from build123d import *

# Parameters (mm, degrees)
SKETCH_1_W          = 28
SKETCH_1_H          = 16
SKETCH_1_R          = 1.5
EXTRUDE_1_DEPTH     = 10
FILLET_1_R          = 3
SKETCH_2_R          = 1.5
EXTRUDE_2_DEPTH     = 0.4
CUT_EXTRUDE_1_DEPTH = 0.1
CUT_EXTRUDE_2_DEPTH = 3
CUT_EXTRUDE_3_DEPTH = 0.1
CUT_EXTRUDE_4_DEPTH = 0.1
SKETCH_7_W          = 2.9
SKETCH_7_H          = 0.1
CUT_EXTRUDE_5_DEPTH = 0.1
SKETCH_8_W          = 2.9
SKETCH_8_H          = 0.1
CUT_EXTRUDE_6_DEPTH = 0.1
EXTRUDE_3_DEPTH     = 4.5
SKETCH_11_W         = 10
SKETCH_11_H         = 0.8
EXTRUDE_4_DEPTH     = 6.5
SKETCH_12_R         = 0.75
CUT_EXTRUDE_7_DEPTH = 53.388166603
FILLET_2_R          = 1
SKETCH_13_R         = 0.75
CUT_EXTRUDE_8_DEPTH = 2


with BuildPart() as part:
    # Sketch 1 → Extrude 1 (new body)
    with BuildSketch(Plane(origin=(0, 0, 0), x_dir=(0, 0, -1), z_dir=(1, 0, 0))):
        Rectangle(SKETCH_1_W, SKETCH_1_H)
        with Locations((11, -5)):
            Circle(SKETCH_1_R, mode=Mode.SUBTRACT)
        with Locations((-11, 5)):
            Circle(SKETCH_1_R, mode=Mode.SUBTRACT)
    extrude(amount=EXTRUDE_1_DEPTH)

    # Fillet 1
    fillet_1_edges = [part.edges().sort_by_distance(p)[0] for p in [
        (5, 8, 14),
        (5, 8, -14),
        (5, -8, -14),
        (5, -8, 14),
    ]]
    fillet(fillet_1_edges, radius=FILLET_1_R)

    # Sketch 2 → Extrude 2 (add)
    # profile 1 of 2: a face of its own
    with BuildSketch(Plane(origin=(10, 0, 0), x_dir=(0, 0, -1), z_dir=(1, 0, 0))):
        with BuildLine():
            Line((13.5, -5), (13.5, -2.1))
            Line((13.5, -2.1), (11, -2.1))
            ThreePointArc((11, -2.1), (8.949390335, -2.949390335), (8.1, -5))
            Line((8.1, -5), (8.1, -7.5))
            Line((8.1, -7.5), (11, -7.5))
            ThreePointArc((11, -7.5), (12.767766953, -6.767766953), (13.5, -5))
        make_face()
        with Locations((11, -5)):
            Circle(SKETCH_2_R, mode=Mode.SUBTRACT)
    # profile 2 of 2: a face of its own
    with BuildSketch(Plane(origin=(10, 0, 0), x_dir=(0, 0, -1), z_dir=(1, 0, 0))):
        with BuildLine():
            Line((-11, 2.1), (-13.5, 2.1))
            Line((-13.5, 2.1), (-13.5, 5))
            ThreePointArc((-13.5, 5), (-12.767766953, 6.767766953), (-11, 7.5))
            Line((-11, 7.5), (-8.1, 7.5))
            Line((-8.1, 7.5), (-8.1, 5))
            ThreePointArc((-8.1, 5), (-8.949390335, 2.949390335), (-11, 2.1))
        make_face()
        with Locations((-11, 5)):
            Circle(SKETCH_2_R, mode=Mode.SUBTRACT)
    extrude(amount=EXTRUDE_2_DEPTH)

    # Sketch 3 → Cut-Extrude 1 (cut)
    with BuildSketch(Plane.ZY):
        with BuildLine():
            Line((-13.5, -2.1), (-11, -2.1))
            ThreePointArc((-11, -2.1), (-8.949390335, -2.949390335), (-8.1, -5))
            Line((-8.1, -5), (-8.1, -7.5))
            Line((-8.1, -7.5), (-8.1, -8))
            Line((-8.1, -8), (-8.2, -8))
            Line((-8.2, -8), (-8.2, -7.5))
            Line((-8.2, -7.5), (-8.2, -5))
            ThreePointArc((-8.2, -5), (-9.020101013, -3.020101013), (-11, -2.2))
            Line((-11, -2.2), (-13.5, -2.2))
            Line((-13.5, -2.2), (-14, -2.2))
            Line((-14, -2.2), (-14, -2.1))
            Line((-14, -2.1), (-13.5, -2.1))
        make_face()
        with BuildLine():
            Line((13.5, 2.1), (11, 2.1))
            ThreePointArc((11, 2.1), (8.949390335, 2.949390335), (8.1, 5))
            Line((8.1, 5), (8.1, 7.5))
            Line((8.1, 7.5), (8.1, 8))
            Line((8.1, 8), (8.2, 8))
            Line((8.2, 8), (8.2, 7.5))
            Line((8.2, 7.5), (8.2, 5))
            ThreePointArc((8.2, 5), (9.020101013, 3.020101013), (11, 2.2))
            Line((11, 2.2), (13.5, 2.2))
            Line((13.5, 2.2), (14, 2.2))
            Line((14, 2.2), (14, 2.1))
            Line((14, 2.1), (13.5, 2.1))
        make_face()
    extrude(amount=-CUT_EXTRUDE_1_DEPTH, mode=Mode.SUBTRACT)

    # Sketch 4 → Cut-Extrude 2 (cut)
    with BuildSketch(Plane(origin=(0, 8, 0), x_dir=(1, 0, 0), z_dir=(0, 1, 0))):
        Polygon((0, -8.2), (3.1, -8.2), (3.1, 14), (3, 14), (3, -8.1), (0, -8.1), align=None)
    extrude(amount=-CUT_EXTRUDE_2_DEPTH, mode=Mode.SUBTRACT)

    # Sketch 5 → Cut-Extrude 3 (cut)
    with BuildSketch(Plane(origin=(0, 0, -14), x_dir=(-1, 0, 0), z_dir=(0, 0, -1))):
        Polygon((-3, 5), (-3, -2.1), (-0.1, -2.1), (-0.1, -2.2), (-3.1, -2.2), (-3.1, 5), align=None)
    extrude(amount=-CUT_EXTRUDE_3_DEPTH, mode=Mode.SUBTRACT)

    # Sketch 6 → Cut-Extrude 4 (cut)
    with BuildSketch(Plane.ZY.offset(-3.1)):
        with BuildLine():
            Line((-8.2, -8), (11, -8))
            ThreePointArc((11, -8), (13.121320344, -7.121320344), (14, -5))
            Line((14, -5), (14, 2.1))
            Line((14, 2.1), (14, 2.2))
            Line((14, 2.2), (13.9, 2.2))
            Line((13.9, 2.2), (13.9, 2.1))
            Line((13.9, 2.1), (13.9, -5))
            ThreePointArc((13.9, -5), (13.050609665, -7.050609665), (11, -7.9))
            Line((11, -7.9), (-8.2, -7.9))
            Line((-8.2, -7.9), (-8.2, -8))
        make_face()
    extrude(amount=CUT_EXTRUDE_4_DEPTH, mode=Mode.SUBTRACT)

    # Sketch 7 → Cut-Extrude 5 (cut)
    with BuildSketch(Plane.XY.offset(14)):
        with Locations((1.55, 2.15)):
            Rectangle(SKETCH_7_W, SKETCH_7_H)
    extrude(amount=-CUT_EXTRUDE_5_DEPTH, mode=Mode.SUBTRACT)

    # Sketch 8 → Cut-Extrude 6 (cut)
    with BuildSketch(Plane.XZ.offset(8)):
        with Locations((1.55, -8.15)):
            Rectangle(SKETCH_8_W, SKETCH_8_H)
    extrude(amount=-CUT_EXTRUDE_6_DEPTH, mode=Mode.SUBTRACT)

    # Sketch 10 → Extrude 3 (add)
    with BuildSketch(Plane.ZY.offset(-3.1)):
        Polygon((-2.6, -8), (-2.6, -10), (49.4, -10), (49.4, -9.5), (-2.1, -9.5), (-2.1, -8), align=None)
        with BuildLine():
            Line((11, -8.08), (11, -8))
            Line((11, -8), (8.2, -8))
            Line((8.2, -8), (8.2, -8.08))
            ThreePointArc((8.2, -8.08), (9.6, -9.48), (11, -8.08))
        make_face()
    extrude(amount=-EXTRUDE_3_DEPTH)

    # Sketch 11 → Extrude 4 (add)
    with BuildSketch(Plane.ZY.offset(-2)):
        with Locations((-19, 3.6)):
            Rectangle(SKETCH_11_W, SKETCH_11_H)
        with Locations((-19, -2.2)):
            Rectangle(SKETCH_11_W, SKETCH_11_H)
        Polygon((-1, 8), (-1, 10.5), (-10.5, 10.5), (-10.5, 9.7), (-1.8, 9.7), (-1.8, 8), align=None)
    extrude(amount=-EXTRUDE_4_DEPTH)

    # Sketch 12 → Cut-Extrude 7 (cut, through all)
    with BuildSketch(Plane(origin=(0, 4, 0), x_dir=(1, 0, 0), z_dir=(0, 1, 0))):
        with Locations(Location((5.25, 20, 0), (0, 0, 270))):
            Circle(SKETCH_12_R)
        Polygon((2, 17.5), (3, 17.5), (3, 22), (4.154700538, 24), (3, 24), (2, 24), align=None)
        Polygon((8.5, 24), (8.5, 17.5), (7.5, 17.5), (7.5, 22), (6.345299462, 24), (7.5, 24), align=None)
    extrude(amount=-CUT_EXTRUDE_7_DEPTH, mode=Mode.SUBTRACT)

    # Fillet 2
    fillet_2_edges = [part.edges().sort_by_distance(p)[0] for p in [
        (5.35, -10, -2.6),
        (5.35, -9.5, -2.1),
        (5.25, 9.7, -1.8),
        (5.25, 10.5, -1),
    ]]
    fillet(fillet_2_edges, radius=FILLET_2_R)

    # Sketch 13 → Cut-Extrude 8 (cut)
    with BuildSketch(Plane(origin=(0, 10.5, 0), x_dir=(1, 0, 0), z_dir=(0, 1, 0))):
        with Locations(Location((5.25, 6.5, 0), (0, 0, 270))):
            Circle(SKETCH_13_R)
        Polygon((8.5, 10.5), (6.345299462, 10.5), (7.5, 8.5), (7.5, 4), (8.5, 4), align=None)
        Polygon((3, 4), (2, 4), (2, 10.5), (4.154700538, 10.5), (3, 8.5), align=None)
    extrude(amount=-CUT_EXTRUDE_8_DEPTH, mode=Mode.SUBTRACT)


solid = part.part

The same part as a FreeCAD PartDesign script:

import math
import FreeCAD as App
import Part
import Sketcher

V = App.Vector
Q = App.Units.Quantity


def edges_at(feature, points):
    """Names of the edges that pass closest to the given points."""
    edges = feature.Shape.Edges
    near = lambda p: min(range(len(edges)), key=lambda i: edges[i].distToShape(Part.Vertex(*p))[0])
    return sorted({f"Edge{near(p) + 1}" for p in points})


def add_polygon(sketch, points):
    """Adds a closed chain of lines whose ends are joined by coincident constraints."""
    first, n = sketch.GeometryCount, len(points)
    for a, b in zip(points, points[1:] + points[:1]):
        sketch.addGeometry(Part.LineSegment(App.Vector(*a, 0), App.Vector(*b, 0)), False)
    for i in range(n):
        sketch.addConstraint(Sketcher.Constraint("Coincident", first + i, 2, first + (i + 1) % n, 1))

doc = App.newDocument("Part")
params = doc.addObject("Spreadsheet::Sheet", "Params")
for row, (alias, value) in enumerate([
    ("sketch1_diameter", "3 mm"),
    ("sketch1_width", "16 mm"),
    ("sketch1_height", "28 mm"),
    ("pad1_length", "10 mm"),
    ("fillet_radius", "3 mm"),
    ("sketch2_diameter", "3 mm"),
    ("sketch2_radius", "2.9 mm"),
    ("sketch2_radius2", "2.5 mm"),
    ("pad2_length", "0.4 mm"),
    ("sketch3_radius", "2.9 mm"),
    ("sketch3_radius2", "2.8 mm"),
    ("sketch3_width", "3 mm"),
    ("pocket1_length", "0.1 mm"),
    ("sketch4_width", "3 mm"),
    ("sketch4_width2", "3.1 mm"),
    ("sketch4_height", "22.2 mm"),
    ("pocket2_length", "3 mm"),
    ("sketch5_width", "3 mm"),
    ("sketch5_width2", "0.1 mm"),
    ("sketch5_height", "7.1 mm"),
    ("pocket3_length", "0.1 mm"),
    ("sketch6_radius", "3 mm"),
    ("sketch6_radius2", "2.9 mm"),
    ("sketch6_width", "7.2 mm"),
    ("sketch6_height", "19.2 mm"),
    ("pocket4_length", "0.1 mm"),
    ("sketch7_width", "2.9 mm"),
    ("sketch7_height", "0.1 mm"),
    ("pocket5_length", "0.1 mm"),
    ("sketch8_width", "2.9 mm"),
    ("sketch8_height", "0.1 mm"),
    ("pocket6_length", "0.1 mm"),
    ("sketch9_radius", "1.4 mm"),
    ("sketch9_width", "2 mm"),
    ("sketch9_height", "52 mm"),
    ("sketch9_width2", "0.5 mm"),
    ("sketch9_width3", "0.08 mm"),
    ("pad3_length", "4.5 mm"),
    ("sketch10_height", "10 mm"),
    ("sketch10_width", "0.8 mm"),
    ("sketch10_width2", "2.5 mm"),
    ("sketch10_height2", "9.5 mm"),
    ("pad4_length", "6.5 mm"),
    ("sketch11_diameter", "1.5 mm"),
    ("sketch11_width", "1 mm"),
    ("sketch11_height", "4.5 mm"),
    ("sketch11_height2", "6.5 mm"),
    ("fillet2_radius", "1 mm"),
    ("sketch12_diameter", "1.5 mm"),
    ("sketch12_width", "1 mm"),
    ("sketch12_height", "4.5 mm"),
    ("sketch12_height2", "6.5 mm"),
    ("pocket8_length", "2 mm"),
], start=1):
    params.set(f"A{row}", alias)
    params.set(f"B{row}", "=" + value)
    params.setAlias(f"B{row}", alias)

body = doc.addObject("PartDesign::Body", "Body")

# Sketch on YZ plane
sketch1 = doc.addObject("Sketcher::SketchObject", "Sketch")
body.addObject(sketch1)
sketch1.AttachmentSupport = (doc.YZ_Plane, [""])
sketch1.MapMode = "FlatFace"
add_polygon(sketch1, [(8, 14), (-8, 14), (-8, -14), (8, -14)])  # lines 0-3
sketch1.addGeometry(Part.Circle(V(-5, -11, 0), V(0, 0, 1), 1.5), False)  # 4
sketch1.addGeometry(Part.Circle(V(5, 11, 0), V(0, 0, 1), 1.5), False)  # 5
sketch1.addConstraint([
    Sketcher.Constraint("Horizontal", 0),
    Sketcher.Constraint("Vertical", 1),
    Sketcher.Constraint("Horizontal", 2),
    Sketcher.Constraint("Vertical", 3),
    Sketcher.Constraint("Equal", 4, 5),
    Sketcher.Constraint("Symmetric", 4, 3, 5, 3, -1, 1),
    Sketcher.Constraint("Symmetric", 0, 2, 2, 2, -1, 1),
    Sketcher.Constraint("Diameter", 4, 3.0),
    Sketcher.Constraint("DistanceX", 0, 2, 0, 1, 16.0),
    Sketcher.Constraint("DistanceY", 1, 2, 1, 1, 28.0),
    Sketcher.Constraint("DistanceX", 4, 3, -1, 1, 5.0),
    Sketcher.Constraint("DistanceY", 4, 3, -1, 1, 11.0),
])
sketch1.setExpression("Constraints[11]", "Params.sketch1_diameter")
sketch1.setExpression("Constraints[12]", "Params.sketch1_width")
sketch1.setExpression("Constraints[13]", "Params.sketch1_height")
pad1 = doc.addObject("PartDesign::Pad", "Pad")
body.addObject(pad1)
pad1.Profile = sketch1
pad1.setExpression("Length", "Params.pad1_length")
doc.recompute()

fillet = doc.addObject("PartDesign::Fillet", "Fillet")
body.addObject(fillet)
fillet.Base = (pad1, edges_at(pad1, [
    (5, 8, 14),
    (5, 8, -14),
    (5, -8, -14),
    (5, -8, 14),
]))
fillet.setExpression("Radius", "Params.fillet_radius")

# Sketch on YZ plane
sketch2 = doc.addObject("Sketcher::SketchObject", "Sketch001")
body.addObject(sketch2)
sketch2.AttachmentSupport = (doc.YZ_Plane, [""])
sketch2.MapMode = "FlatFace"
sketch2.AttachmentOffset = App.Placement(V(0, 0, 10), App.Rotation())
sketch2.addGeometry([
    Part.LineSegment(V(-5, -13.5, 0), V(-2.1, -13.5, 0)),  # 0
    Part.LineSegment(V(-2.1, -13.5, 0), V(-2.1, -11, 0)),  # 1
    Part.ArcOfCircle(Part.Circle(V(-5, -11, 0), V(0, 0, 1), 2.9), math.radians(0), math.radians(90)),  # 2
    Part.LineSegment(V(-5, -8.1, 0), V(-7.5, -8.1, 0)),  # 3
    Part.LineSegment(V(-7.5, -8.1, 0), V(-7.5, -11, 0)),  # 4
    Part.ArcOfCircle(Part.Circle(V(-5, -11, 0), V(0, 0, 1), 2.5), math.radians(180), math.radians(270)),  # 5
    Part.Circle(V(-5, -11, 0), V(0, 0, 1), 1.5),  # 6
    Part.LineSegment(V(2.1, 13.5, 0), V(2.1, 11, 0)),  # 7
    Part.ArcOfCircle(Part.Circle(V(5, 11, 0), V(0, 0, 1), 2.9), math.radians(-180), math.radians(-90)),  # 8
    Part.LineSegment(V(5, 8.1, 0), V(7.5, 8.1, 0)),  # 9
    Part.LineSegment(V(7.5, 8.1, 0), V(7.5, 11, 0)),  # 10
    Part.ArcOfCircle(Part.Circle(V(5, 11, 0), V(0, 0, 1), 2.5), math.radians(0), math.radians(90)),  # 11
    Part.LineSegment(V(5, 13.5, 0), V(2.1, 13.5, 0)),  # 12
    Part.Circle(V(5, 11, 0), V(0, 0, 1), 1.5),  # 13
], False)
sketch2.addConstraint([
    Sketcher.Constraint("Coincident", 0, 2, 1, 1),
    Sketcher.Constraint("Tangent", 1, 2, 2, 1),
    Sketcher.Constraint("Tangent", 2, 2, 3, 1),
    Sketcher.Constraint("Coincident", 3, 2, 4, 1),
    Sketcher.Constraint("Tangent", 4, 2, 5, 1),
    Sketcher.Constraint("Tangent", 5, 2, 0, 1),
    Sketcher.Constraint("Tangent", 7, 2, 8, 1),
    Sketcher.Constraint("Tangent", 8, 2, 9, 1),
    Sketcher.Constraint("Coincident", 9, 2, 10, 1),
    Sketcher.Constraint("Tangent", 10, 2, 11, 1),
    Sketcher.Constraint("Tangent", 11, 2, 12, 1),
    Sketcher.Constraint("Coincident", 12, 2, 7, 1),
    Sketcher.Constraint("Horizontal", 0),
    Sketcher.Constraint("Vertical", 1),
    Sketcher.Constraint("Horizontal", 3),
    Sketcher.Constraint("Vertical", 4),
    Sketcher.Constraint("Vertical", 7),
    Sketcher.Constraint("Horizontal", 9),
    Sketcher.Constraint("Vertical", 10),
    Sketcher.Constraint("Horizontal", 12),
    Sketcher.Constraint("Coincident", 5, 3, 2, 3),
    Sketcher.Constraint("Coincident", 6, 3, 2, 3),
    Sketcher.Constraint("Coincident", 11, 3, 8, 3),
    Sketcher.Constraint("Coincident", 13, 3, 8, 3),
    Sketcher.Constraint("Equal", 2, 8),
    Sketcher.Constraint("Equal", 5, 11),
    Sketcher.Constraint("Equal", 6, 13),
    Sketcher.Constraint("Symmetric", 2, 3, 8, 3, -1, 1),
    Sketcher.Constraint("Diameter", 6, 3.0),
    Sketcher.Constraint("Radius", 2, 2.9),
    Sketcher.Constraint("Radius", 5, 2.5),
    Sketcher.Constraint("DistanceX", 2, 3, -1, 1, 5.0),
    Sketcher.Constraint("DistanceY", 2, 3, -1, 1, 11.0),
])
sketch2.setExpression("Constraints[28]", "Params.sketch2_diameter")
sketch2.setExpression("Constraints[29]", "Params.sketch2_radius")
sketch2.setExpression("Constraints[30]", "Params.sketch2_radius2")
pad2 = doc.addObject("PartDesign::Pad", "Pad001")
body.addObject(pad2)
pad2.Profile = sketch2
pad2.setExpression("Length", "Params.pad2_length")

# Sketch on YZ plane
sketch3 = doc.addObject("Sketcher::SketchObject", "Sketch002")
body.addObject(sketch3)
sketch3.AttachmentSupport = (doc.YZ_Plane, [""])
sketch3.MapMode = "FlatFace"
sketch3.addGeometry([
    Part.ArcOfCircle(Part.Circle(V(-5, -11, 0), V(0, 0, 1), 2.9), math.radians(0), math.radians(90)),  # 0
    Part.LineSegment(V(-2.1, -11, 0), V(-2.1, -14, 0)),  # 1
    Part.LineSegment(V(-2.1, -14, 0), V(-2.2, -14, 0)),  # 2
    Part.LineSegment(V(-2.2, -14, 0), V(-2.2, -11, 0)),  # 3
    Part.ArcOfCircle(Part.Circle(V(-5, -11, 0), V(0, 0, 1), 2.8), math.radians(0), math.radians(90)),  # 4
    Part.LineSegment(V(-5, -8.2, 0), V(-8, -8.2, 0)),  # 5
    Part.LineSegment(V(-8, -8.2, 0), V(-8, -8.1, 0)),  # 6
    Part.LineSegment(V(-8, -8.1, 0), V(-5, -8.1, 0)),  # 7
    Part.ArcOfCircle(Part.Circle(V(5, 11, 0), V(0, 0, 1), 2.9), math.radians(-180), math.radians(-90)),  # 8
    Part.LineSegment(V(2.1, 11, 0), V(2.1, 14, 0)),  # 9
    Part.LineSegment(V(2.1, 14, 0), V(2.2, 14, 0)),  # 10
    Part.LineSegment(V(2.2, 14, 0), V(2.2, 11, 0)),  # 11
    Part.ArcOfCircle(Part.Circle(V(5, 11, 0), V(0, 0, 1), 2.8), math.radians(-180), math.radians(-90)),  # 12
    Part.LineSegment(V(5, 8.2, 0), V(8, 8.2, 0)),  # 13
    Part.LineSegment(V(8, 8.2, 0), V(8, 8.1, 0)),  # 14
    Part.LineSegment(V(8, 8.1, 0), V(5, 8.1, 0)),  # 15
], False)
sketch3.addConstraint([
    Sketcher.Constraint("Tangent", 0, 1, 1, 1),
    Sketcher.Constraint("Coincident", 1, 2, 2, 1),
    Sketcher.Constraint("Coincident", 2, 2, 3, 1),
    Sketcher.Constraint("Tangent", 3, 2, 4, 1),
    Sketcher.Constraint("Tangent", 4, 2, 5, 1),
    Sketcher.Constraint("Coincident", 5, 2, 6, 1),
    Sketcher.Constraint("Coincident", 6, 2, 7, 1),
    Sketcher.Constraint("Tangent", 7, 2, 0, 2),
    Sketcher.Constraint("Tangent", 8, 1, 9, 1),
    Sketcher.Constraint("Coincident", 9, 2, 10, 1),
    Sketcher.Constraint("Coincident", 10, 2, 11, 1),
    Sketcher.Constraint("Tangent", 11, 2, 12, 1),
    Sketcher.Constraint("Tangent", 12, 2, 13, 1),
    Sketcher.Constraint("Coincident", 13, 2, 14, 1),
    Sketcher.Constraint("Coincident", 14, 2, 15, 1),
    Sketcher.Constraint("Tangent", 15, 2, 8, 2),
    Sketcher.Constraint("Vertical", 1),
    Sketcher.Constraint("Horizontal", 2),
    Sketcher.Constraint("Vertical", 3),
    Sketcher.Constraint("Horizontal", 5),
    Sketcher.Constraint("Vertical", 6),
    Sketcher.Constraint("Horizontal", 7),
    Sketcher.Constraint("Vertical", 9),
    Sketcher.Constraint("Horizontal", 10),
    Sketcher.Constraint("Vertical", 11),
    Sketcher.Constraint("Horizontal", 13),
    Sketcher.Constraint("Vertical", 14),
    Sketcher.Constraint("Horizontal", 15),
    Sketcher.Constraint("Coincident", 4, 3, 0, 3),
    Sketcher.Constraint("Coincident", 12, 3, 8, 3),
    Sketcher.Constraint("Equal", 0, 8),
    Sketcher.Constraint("Equal", 4, 12),
    Sketcher.Constraint("Symmetric", 0, 3, 8, 3, -1, 1),
    Sketcher.Constraint("Equal", 7, 13),
    Sketcher.Constraint("Equal", 15, 1),
    Sketcher.Constraint("Equal", 3, 9),
    Sketcher.Constraint("Radius", 0, 2.9),
    Sketcher.Constraint("Radius", 4, 2.8),
    Sketcher.Constraint("DistanceX", 5, 2, 5, 1, 3.0),
    Sketcher.Constraint("DistanceX", 0, 3, -1, 1, 5.0),
    Sketcher.Constraint("DistanceY", 0, 3, -1, 1, 11.0),
])
sketch3.setExpression("Constraints[36]", "Params.sketch3_radius")
sketch3.setExpression("Constraints[37]", "Params.sketch3_radius2")
sketch3.setExpression("Constraints[38]", "Params.sketch3_width")
pocket1 = doc.addObject("PartDesign::Pocket", "Pocket")
body.addObject(pocket1)
pocket1.Profile = sketch3
pocket1.setExpression("Length", "Params.pocket1_length")
pocket1.Reversed = True

# Sketch on XZ plane
sketch4 = doc.addObject("Sketcher::SketchObject", "Sketch003")
body.addObject(sketch4)
sketch4.AttachmentSupport = (doc.XZ_Plane, [""])
sketch4.MapMode = "FlatFace"
sketch4.AttachmentOffset = App.Placement(V(0, 0, -8), App.Rotation())
add_polygon(sketch4, [(0, 8.2), (3.1, 8.2), (3.1, -14), (3, -14), (3, 8.1), (0, 8.1)])  # lines 0-5
sketch4.addConstraint([
    Sketcher.Constraint("Horizontal", 0),
    Sketcher.Constraint("Vertical", 1),
    Sketcher.Constraint("Horizontal", 2),
    Sketcher.Constraint("Vertical", 3),
    Sketcher.Constraint("Horizontal", 4),
    Sketcher.Constraint("Vertical", 5),
    Sketcher.Constraint("PointOnObject", 4, 2, -2),
    Sketcher.Constraint("Equal", 2, 5),
    Sketcher.Constraint("DistanceX", 4, 2, 4, 1, 3.0),
    Sketcher.Constraint("DistanceX", 0, 1, 0, 2, 3.1),
    Sketcher.Constraint("DistanceY", 1, 2, 1, 1, 22.2),
    Sketcher.Constraint("DistanceY", 1, 2, -1, 1, 14.0),
])
sketch4.setExpression("Constraints[14]", "Params.sketch4_width")
sketch4.setExpression("Constraints[15]", "Params.sketch4_width2")
sketch4.setExpression("Constraints[16]", "Params.sketch4_height")
pocket2 = doc.addObject("PartDesign::Pocket", "Pocket001")
body.addObject(pocket2)
pocket2.Profile = sketch4
pocket2.setExpression("Length", "Params.pocket2_length")
pocket2.Reversed = True

# Sketch on XY plane
sketch5 = doc.addObject("Sketcher::SketchObject", "Sketch004")
body.addObject(sketch5)
sketch5.AttachmentSupport = (doc.XY_Plane, [""])
sketch5.MapMode = "FlatFace"
sketch5.AttachmentOffset = App.Placement(V(0, 0, -14), App.Rotation())
add_polygon(sketch5, [(3, -2.1), (3, 5), (3.1, 5), (3.1, -2.2), (0.1, -2.2), (0.1, -2.1)])  # lines 0-5
sketch5.addConstraint([
    Sketcher.Constraint("Vertical", 0),
    Sketcher.Constraint("Horizontal", 1),
    Sketcher.Constraint("Vertical", 2),
    Sketcher.Constraint("Horizontal", 3),
    Sketcher.Constraint("Vertical", 4),
    Sketcher.Constraint("Horizontal", 5),
    Sketcher.Constraint("Equal", 1, 4),
    Sketcher.Constraint("DistanceX", 3, 2, 3, 1, 3.0),
    Sketcher.Constraint("DistanceX", 1, 1, 1, 2, 0.1),
    Sketcher.Constraint("DistanceY", 0, 1, 0, 2, 7.1),
    Sketcher.Constraint("DistanceX", -1, 1, 0, 2, 3.0),
    Sketcher.Constraint("DistanceY", -1, 1, 0, 2, 5.0),
])
sketch5.setExpression("Constraints[13]", "Params.sketch5_width")
sketch5.setExpression("Constraints[14]", "Params.sketch5_width2")
sketch5.setExpression("Constraints[15]", "Params.sketch5_height")
pocket3 = doc.addObject("PartDesign::Pocket", "Pocket002")
body.addObject(pocket3)
pocket3.Profile = sketch5
pocket3.setExpression("Length", "Params.pocket3_length")
pocket3.Reversed = True

# Sketch on YZ plane
sketch6 = doc.addObject("Sketcher::SketchObject", "Sketch005")
body.addObject(sketch6)
sketch6.AttachmentSupport = (doc.YZ_Plane, [""])
sketch6.MapMode = "FlatFace"
sketch6.AttachmentOffset = App.Placement(V(0, 0, 3.1), App.Rotation())
sketch6.addGeometry([
    Part.LineSegment(V(-8, -8.2, 0), V(-8, 11, 0)),  # 0
    Part.ArcOfCircle(Part.Circle(V(-5, 11, 0), V(0, 0, 1), 3), math.radians(90), math.radians(180)),  # 1
    Part.LineSegment(V(-5, 14, 0), V(2.2, 14, 0)),  # 2
    Part.LineSegment(V(2.2, 14, 0), V(2.2, 13.9, 0)),  # 3
    Part.LineSegment(V(2.2, 13.9, 0), V(-5, 13.9, 0)),  # 4
    Part.ArcOfCircle(Part.Circle(V(-5, 11, 0), V(0, 0, 1), 2.9), math.radians(90), math.radians(180)),  # 5
    Part.LineSegment(V(-7.9, 11, 0), V(-7.9, -8.2, 0)),  # 6
    Part.LineSegment(V(-7.9, -8.2, 0), V(-8, -8.2, 0)),  # 7
], False)
sketch6.addConstraint([
    Sketcher.Constraint("Tangent", 0, 2, 1, 2),
    Sketcher.Constraint("Tangent", 1, 1, 2, 1),
    Sketcher.Constraint("Coincident", 2, 2, 3, 1),
    Sketcher.Constraint("Coincident", 3, 2, 4, 1),
    Sketcher.Constraint("Tangent", 4, 2, 5, 1),
    Sketcher.Constraint("Tangent", 5, 2, 6, 1),
    Sketcher.Constraint("Coincident", 6, 2, 7, 1),
    Sketcher.Constraint("Coincident", 7, 2, 0, 1),
    Sketcher.Constraint("Vertical", 0),
    Sketcher.Constraint("Horizontal", 2),
    Sketcher.Constraint("Vertical", 3),
    Sketcher.Constraint("Horizontal", 4),
    Sketcher.Constraint("Vertical", 6),
    Sketcher.Constraint("Horizontal", 7),
    Sketcher.Constraint("Coincident", 5, 3, 1, 3),
    Sketcher.Constraint("Radius", 1, 3.0),
    Sketcher.Constraint("Radius", 5, 2.9),
    Sketcher.Constraint("DistanceX", 2, 1, 2, 2, 7.2),
    Sketcher.Constraint("DistanceY", 0, 1, 0, 2, 19.2),
    Sketcher.Constraint("DistanceX", 1, 3, -1, 1, 5.0),
    Sketcher.Constraint("DistanceY", -1, 1, 1, 3, 11.0),
])
sketch6.setExpression("Constraints[15]", "Params.sketch6_radius")
sketch6.setExpression("Constraints[16]", "Params.sketch6_radius2")
sketch6.setExpression("Constraints[17]", "Params.sketch6_width")
sketch6.setExpression("Constraints[18]", "Params.sketch6_height")
pocket4 = doc.addObject("PartDesign::Pocket", "Pocket003")
body.addObject(pocket4)
pocket4.Profile = sketch6
pocket4.setExpression("Length", "Params.pocket4_length")

# Sketch on XY plane
sketch7 = doc.addObject("Sketcher::SketchObject", "Sketch006")
body.addObject(sketch7)
sketch7.AttachmentSupport = (doc.XY_Plane, [""])
sketch7.MapMode = "FlatFace"
sketch7.AttachmentOffset = App.Placement(V(0, 0, 14), App.Rotation())
add_polygon(sketch7, [(0.1, 2.2), (0.1, 2.1), (3, 2.1), (3, 2.2)])  # lines 0-3
sketch7.addConstraint([
    Sketcher.Constraint("Vertical", 0),
    Sketcher.Constraint("Horizontal", 1),
    Sketcher.Constraint("Vertical", 2),
    Sketcher.Constraint("Horizontal", 3),
    Sketcher.Constraint("DistanceX", 1, 1, 1, 2, 2.9),
    Sketcher.Constraint("DistanceY", 0, 2, 0, 1, 0.1),
    Sketcher.Constraint("DistanceX", -1, 1, 1, 2, 3.0),
    Sketcher.Constraint("DistanceY", -1, 1, 0, 2, 2.1),
])
sketch7.setExpression("Constraints[8]", "Params.sketch7_width")
sketch7.setExpression("Constraints[9]", "Params.sketch7_height")
pocket5 = doc.addObject("PartDesign::Pocket", "Pocket004")
body.addObject(pocket5)
pocket5.Profile = sketch7
pocket5.setExpression("Length", "Params.pocket5_length")

# Sketch on XZ plane
sketch8 = doc.addObject("Sketcher::SketchObject", "Sketch007")
body.addObject(sketch8)
sketch8.AttachmentSupport = (doc.XZ_Plane, [""])
sketch8.MapMode = "FlatFace"
sketch8.AttachmentOffset = App.Placement(V(0, 0, 8), App.Rotation())
add_polygon(sketch8, [(0.1, -8.1), (0.1, -8.2), (3, -8.2), (3, -8.1)])  # lines 0-3
sketch8.addConstraint([
    Sketcher.Constraint("Vertical", 0),
    Sketcher.Constraint("Horizontal", 1),
    Sketcher.Constraint("Vertical", 2),
    Sketcher.Constraint("Horizontal", 3),
    Sketcher.Constraint("DistanceX", 1, 1, 1, 2, 2.9),
    Sketcher.Constraint("DistanceY", 0, 2, 0, 1, 0.1),
    Sketcher.Constraint("DistanceX", -1, 1, 1, 2, 3.0),
    Sketcher.Constraint("DistanceY", 0, 2, -1, 1, 8.2),
])
sketch8.setExpression("Constraints[8]", "Params.sketch8_width")
sketch8.setExpression("Constraints[9]", "Params.sketch8_height")
pocket6 = doc.addObject("PartDesign::Pocket", "Pocket005")
body.addObject(pocket6)
pocket6.Profile = sketch8
pocket6.setExpression("Length", "Params.pocket6_length")

# Sketch on YZ plane
sketch9 = doc.addObject("Sketcher::SketchObject", "Sketch008")
body.addObject(sketch9)
sketch9.AttachmentSupport = (doc.YZ_Plane, [""])
sketch9.MapMode = "FlatFace"
sketch9.AttachmentOffset = App.Placement(V(0, 0, 3.1), App.Rotation())
add_polygon(sketch9, [(-8, -2.6), (-10, -2.6), (-10, 49.4), (-9.5, 49.4), (-9.5, -2.1), (-8, -2.1)])  # lines 0-5
sketch9.addGeometry(Part.LineSegment(V(-8.08, 11, 0), V(-8, 11, 0)), False)  # 6
sketch9.addGeometry(Part.LineSegment(V(-8, 11, 0), V(-8, 8.2, 0)), False)  # 7
sketch9.addGeometry(Part.LineSegment(V(-8, 8.2, 0), V(-8.08, 8.2, 0)), False)  # 8
sketch9.addGeometry(Part.ArcOfCircle(Part.Circle(V(-8.08, 9.6, 0), V(0, 0, 1), 1.4), math.radians(90), math.radians(270)), False)  # 9
sketch9.addConstraint([
    Sketcher.Constraint("Coincident", 6, 2, 7, 1),
    Sketcher.Constraint("Coincident", 7, 2, 8, 1),
    Sketcher.Constraint("Tangent", 8, 2, 9, 2),
    Sketcher.Constraint("Tangent", 9, 1, 6, 1),
    Sketcher.Constraint("Horizontal", 0),
    Sketcher.Constraint("Vertical", 1),
    Sketcher.Constraint("Horizontal", 2),
    Sketcher.Constraint("Vertical", 3),
    Sketcher.Constraint("Horizontal", 4),
    Sketcher.Constraint("Vertical", 5),
    Sketcher.Constraint("Horizontal", 6),
    Sketcher.Constraint("Vertical", 7),
    Sketcher.Constraint("Horizontal", 8),
    Sketcher.Constraint("Vertical", 5, 2, 6, 2),
    Sketcher.Constraint("Equal", 2, 5),
    Sketcher.Constraint("Radius", 9, 1.4),
    Sketcher.Constraint("DistanceX", 0, 2, 0, 1, 2.0),
    Sketcher.Constraint("DistanceY", 1, 1, 1, 2, 52.0),
    Sketcher.Constraint("DistanceX", 2, 1, 2, 2, 0.5),
    Sketcher.Constraint("DistanceX", 0, 2, -1, 1, 10.0),
    Sketcher.Constraint("DistanceY", -1, 1, 6, 2, 11.0),
    Sketcher.Constraint("DistanceX", 6, 1, 6, 2, 0.08),
    Sketcher.Constraint("DistanceY", 0, 2, -1, 1, 2.6),
])
sketch9.setExpression("Constraints[21]", "Params.sketch9_radius")
sketch9.setExpression("Constraints[22]", "Params.sketch9_width")
sketch9.setExpression("Constraints[23]", "Params.sketch9_height")
sketch9.setExpression("Constraints[24]", "Params.sketch9_width2")
sketch9.setExpression("Constraints[27]", "Params.sketch9_width3")
pad3 = doc.addObject("PartDesign::Pad", "Pad002")
body.addObject(pad3)
pad3.Profile = sketch9
pad3.setExpression("Length", "Params.pad3_length")

# Sketch on YZ plane
sketch10 = doc.addObject("Sketcher::SketchObject", "Sketch009")
body.addObject(sketch10)
sketch10.AttachmentSupport = (doc.YZ_Plane, [""])
sketch10.MapMode = "FlatFace"
sketch10.AttachmentOffset = App.Placement(V(0, 0, 2), App.Rotation())
add_polygon(sketch10, [(4, -24), (3.2, -24), (3.2, -14), (4, -14)])  # lines 0-3
add_polygon(sketch10, [(-1.8, -24), (-2.6, -24), (-2.6, -14), (-1.8, -14)])  # lines 4-7
add_polygon(sketch10, [(8, -1), (10.5, -1), (10.5, -10.5), (9.7, -10.5), (9.7, -1.8), (8, -1.8)])  # lines 8-13
sketch10.addConstraint([
    Sketcher.Constraint("Horizontal", 0),
    Sketcher.Constraint("Vertical", 1),
    Sketcher.Constraint("Horizontal", 2),
    Sketcher.Constraint("Vertical", 3),
    Sketcher.Constraint("Horizontal", 4),
    Sketcher.Constraint("Vertical", 5),
    Sketcher.Constraint("Horizontal", 6),
    Sketcher.Constraint("Vertical", 7),
    Sketcher.Constraint("Horizontal", 8),
    Sketcher.Constraint("Vertical", 9),
    Sketcher.Constraint("Horizontal", 10),
    Sketcher.Constraint("Vertical", 11),
    Sketcher.Constraint("Horizontal", 12),
    Sketcher.Constraint("Vertical", 13),
    Sketcher.Constraint("Horizontal", 3, 2, 4, 2),
    Sketcher.Constraint("Horizontal", 2, 2, 5, 2),
    Sketcher.Constraint("Equal", 2, 4),
    Sketcher.Constraint("Equal", 6, 10),
    Sketcher.Constraint("Equal", 10, 13),
    Sketcher.Constraint("DistanceY", 1, 1, 1, 2, 10.0),
    Sketcher.Constraint("DistanceX", 0, 2, 0, 1, 0.8),
    Sketcher.Constraint("DistanceX", 8, 1, 8, 2, 2.5),
    Sketcher.Constraint("DistanceY", 9, 2, 9, 1, 9.5),
    Sketcher.Constraint("DistanceY", 0, 2, -1, 1, 24.0),
    Sketcher.Constraint("DistanceX", -1, 1, 2, 2, 4.0),
    Sketcher.Constraint("DistanceY", 8, 2, -1, 1, 1.0),
    Sketcher.Constraint("DistanceX", -1, 1, 12, 2, 8.0),
    Sketcher.Constraint("DistanceX", 6, 2, 1, 2, 5.0),
])
sketch10.setExpression("Constraints[33]", "Params.sketch10_height")
sketch10.setExpression("Constraints[34]", "Params.sketch10_width")
sketch10.setExpression("Constraints[35]", "Params.sketch10_width2")
sketch10.setExpression("Constraints[36]", "Params.sketch10_height2")
pad4 = doc.addObject("PartDesign::Pad", "Pad003")
body.addObject(pad4)
pad4.Profile = sketch10
pad4.setExpression("Length", "Params.pad4_length")

# Sketch on XZ plane
sketch11 = doc.addObject("Sketcher::SketchObject", "Sketch010")
body.addObject(sketch11)
sketch11.AttachmentSupport = (doc.XZ_Plane, [""])
sketch11.MapMode = "FlatFace"
sketch11.AttachmentOffset = App.Placement(V(0, 0, -4), App.Rotation())
sketch11.addGeometry(Part.Circle(V(5.2, -20, 0), V(0, 0, 1), 0.8), False)  # 0
add_polygon(sketch11, [(2, -17.5), (3, -17.5), (3, -22), (4.2, -24), (2, -24)])  # lines 1-5
add_polygon(sketch11, [(8.5, -17.5), (8.5, -24), (6.3, -24), (7.5, -22), (7.5, -17.5)])  # lines 6-10
sketch11.addConstraint([
    Sketcher.Constraint("Horizontal", 1),
    Sketcher.Constraint("Vertical", 2),
    Sketcher.Constraint("Horizontal", 4),
    Sketcher.Constraint("Vertical", 5),
    Sketcher.Constraint("Vertical", 6),
    Sketcher.Constraint("Horizontal", 7),
    Sketcher.Constraint("Vertical", 9),
    Sketcher.Constraint("Horizontal", 10),
    Sketcher.Constraint("Horizontal", 4, 2, 6, 2),
    Sketcher.Constraint("Horizontal", 2, 2, 8, 2),
    Sketcher.Constraint("Horizontal", 5, 2, 9, 2),
    Sketcher.Constraint("Equal", 4, 7),
    Sketcher.Constraint("Equal", 1, 10),
    Sketcher.Constraint("Diameter", 0, 1.5),
    Sketcher.Constraint("DistanceX", 1, 1, 1, 2, 1.0),
    Sketcher.Constraint("Angle", 3, Q("-60 deg")),
    Sketcher.Constraint("DistanceY", 2, 2, 2, 1, 4.5),
    Sketcher.Constraint("DistanceY", 5, 1, 5, 2, 6.5),
    Sketcher.Constraint("DistanceY", 0, 3, -1, 1, 20.0),
    Sketcher.Constraint("DistanceX", -1, 1, 1, 2, 3.0),
    Sketcher.Constraint("DistanceY", 2, 2, -1, 1, 22.0),
    Sketcher.Constraint("DistanceX", -1, 1, 6, 2, 8.5),
    Sketcher.Constraint("DistanceX", -1, 1, 0, 3, 5.25),
])
sketch11.setExpression("Constraints[23]", "Params.sketch11_diameter")
sketch11.setExpression("Constraints[24]", "Params.sketch11_width")
sketch11.setExpression("Constraints[26]", "Params.sketch11_height")
sketch11.setExpression("Constraints[27]", "Params.sketch11_height2")
pocket7 = doc.addObject("PartDesign::Pocket", "Pocket006")
body.addObject(pocket7)
pocket7.Profile = sketch11
pocket7.Type = "ThroughAll"
pocket7.Reversed = True
doc.recompute()

fillet2 = doc.addObject("PartDesign::Fillet", "Fillet001")
body.addObject(fillet2)
fillet2.Base = (pocket7, edges_at(pocket7, [
    (5.35, -10, -2.6),
    (5.35, -9.5, -2.1),
    (5.25, 9.7, -1.8),
    (5.25, 10.5, -1),
]))
fillet2.setExpression("Radius", "Params.fillet2_radius")

# Sketch on XZ plane
sketch12 = doc.addObject("Sketcher::SketchObject", "Sketch011")
body.addObject(sketch12)
sketch12.AttachmentSupport = (doc.XZ_Plane, [""])
sketch12.MapMode = "FlatFace"
sketch12.AttachmentOffset = App.Placement(V(0, 0, -10.5), App.Rotation())
sketch12.addGeometry(Part.Circle(V(5.2, -6.5, 0), V(0, 0, 1), 0.8), False)  # 0
add_polygon(sketch12, [(8.5, -10.5), (6.3, -10.5), (7.5, -8.5), (7.5, -4), (8.5, -4)])  # lines 1-5
add_polygon(sketch12, [(2, -4), (3, -4), (3, -8.5), (4.2, -10.5), (2, -10.5)])  # lines 6-10
sketch12.addConstraint([
    Sketcher.Constraint("Horizontal", 1),
    Sketcher.Constraint("Vertical", 3),
    Sketcher.Constraint("Horizontal", 4),
    Sketcher.Constraint("Vertical", 5),
    Sketcher.Constraint("Horizontal", 6),
    Sketcher.Constraint("Vertical", 7),
    Sketcher.Constraint("Horizontal", 9),
    Sketcher.Constraint("Vertical", 10),
    Sketcher.Constraint("Horizontal", 4, 2, 6, 2),
    Sketcher.Constraint("Horizontal", 2, 2, 7, 2),
    Sketcher.Constraint("Horizontal", 5, 2, 8, 2),
    Sketcher.Constraint("Equal", 4, 6),
    Sketcher.Constraint("Equal", 1, 9),
    Sketcher.Constraint("Diameter", 0, 1.5),
    Sketcher.Constraint("DistanceX", 4, 1, 4, 2, 1.0),
    Sketcher.Constraint("Angle", 2, Q("60 deg")),
    Sketcher.Constraint("DistanceY", 3, 1, 3, 2, 4.5),
    Sketcher.Constraint("DistanceY", 5, 2, 5, 1, 6.5),
    Sketcher.Constraint("DistanceY", 3, 2, -1, 1, 4.0),
    Sketcher.Constraint("DistanceX", -1, 1, 6, 2, 3.0),
    Sketcher.Constraint("DistanceY", 1, 2, 0, 3, 4.0),
    Sketcher.Constraint("DistanceX", -1, 1, 2, 2, 7.5),
    Sketcher.Constraint("DistanceX", -1, 1, 0, 3, 5.25),
])
sketch12.setExpression("Constraints[23]", "Params.sketch12_diameter")
sketch12.setExpression("Constraints[24]", "Params.sketch12_width")
sketch12.setExpression("Constraints[26]", "Params.sketch12_height")
sketch12.setExpression("Constraints[27]", "Params.sketch12_height2")
pocket8 = doc.addObject("PartDesign::Pocket", "Pocket007")
body.addObject(pocket8)
pocket8.Profile = sketch12
pocket8.setExpression("Length", "Params.pocket8_length")
pocket8.Reversed = True

doc.recompute()
